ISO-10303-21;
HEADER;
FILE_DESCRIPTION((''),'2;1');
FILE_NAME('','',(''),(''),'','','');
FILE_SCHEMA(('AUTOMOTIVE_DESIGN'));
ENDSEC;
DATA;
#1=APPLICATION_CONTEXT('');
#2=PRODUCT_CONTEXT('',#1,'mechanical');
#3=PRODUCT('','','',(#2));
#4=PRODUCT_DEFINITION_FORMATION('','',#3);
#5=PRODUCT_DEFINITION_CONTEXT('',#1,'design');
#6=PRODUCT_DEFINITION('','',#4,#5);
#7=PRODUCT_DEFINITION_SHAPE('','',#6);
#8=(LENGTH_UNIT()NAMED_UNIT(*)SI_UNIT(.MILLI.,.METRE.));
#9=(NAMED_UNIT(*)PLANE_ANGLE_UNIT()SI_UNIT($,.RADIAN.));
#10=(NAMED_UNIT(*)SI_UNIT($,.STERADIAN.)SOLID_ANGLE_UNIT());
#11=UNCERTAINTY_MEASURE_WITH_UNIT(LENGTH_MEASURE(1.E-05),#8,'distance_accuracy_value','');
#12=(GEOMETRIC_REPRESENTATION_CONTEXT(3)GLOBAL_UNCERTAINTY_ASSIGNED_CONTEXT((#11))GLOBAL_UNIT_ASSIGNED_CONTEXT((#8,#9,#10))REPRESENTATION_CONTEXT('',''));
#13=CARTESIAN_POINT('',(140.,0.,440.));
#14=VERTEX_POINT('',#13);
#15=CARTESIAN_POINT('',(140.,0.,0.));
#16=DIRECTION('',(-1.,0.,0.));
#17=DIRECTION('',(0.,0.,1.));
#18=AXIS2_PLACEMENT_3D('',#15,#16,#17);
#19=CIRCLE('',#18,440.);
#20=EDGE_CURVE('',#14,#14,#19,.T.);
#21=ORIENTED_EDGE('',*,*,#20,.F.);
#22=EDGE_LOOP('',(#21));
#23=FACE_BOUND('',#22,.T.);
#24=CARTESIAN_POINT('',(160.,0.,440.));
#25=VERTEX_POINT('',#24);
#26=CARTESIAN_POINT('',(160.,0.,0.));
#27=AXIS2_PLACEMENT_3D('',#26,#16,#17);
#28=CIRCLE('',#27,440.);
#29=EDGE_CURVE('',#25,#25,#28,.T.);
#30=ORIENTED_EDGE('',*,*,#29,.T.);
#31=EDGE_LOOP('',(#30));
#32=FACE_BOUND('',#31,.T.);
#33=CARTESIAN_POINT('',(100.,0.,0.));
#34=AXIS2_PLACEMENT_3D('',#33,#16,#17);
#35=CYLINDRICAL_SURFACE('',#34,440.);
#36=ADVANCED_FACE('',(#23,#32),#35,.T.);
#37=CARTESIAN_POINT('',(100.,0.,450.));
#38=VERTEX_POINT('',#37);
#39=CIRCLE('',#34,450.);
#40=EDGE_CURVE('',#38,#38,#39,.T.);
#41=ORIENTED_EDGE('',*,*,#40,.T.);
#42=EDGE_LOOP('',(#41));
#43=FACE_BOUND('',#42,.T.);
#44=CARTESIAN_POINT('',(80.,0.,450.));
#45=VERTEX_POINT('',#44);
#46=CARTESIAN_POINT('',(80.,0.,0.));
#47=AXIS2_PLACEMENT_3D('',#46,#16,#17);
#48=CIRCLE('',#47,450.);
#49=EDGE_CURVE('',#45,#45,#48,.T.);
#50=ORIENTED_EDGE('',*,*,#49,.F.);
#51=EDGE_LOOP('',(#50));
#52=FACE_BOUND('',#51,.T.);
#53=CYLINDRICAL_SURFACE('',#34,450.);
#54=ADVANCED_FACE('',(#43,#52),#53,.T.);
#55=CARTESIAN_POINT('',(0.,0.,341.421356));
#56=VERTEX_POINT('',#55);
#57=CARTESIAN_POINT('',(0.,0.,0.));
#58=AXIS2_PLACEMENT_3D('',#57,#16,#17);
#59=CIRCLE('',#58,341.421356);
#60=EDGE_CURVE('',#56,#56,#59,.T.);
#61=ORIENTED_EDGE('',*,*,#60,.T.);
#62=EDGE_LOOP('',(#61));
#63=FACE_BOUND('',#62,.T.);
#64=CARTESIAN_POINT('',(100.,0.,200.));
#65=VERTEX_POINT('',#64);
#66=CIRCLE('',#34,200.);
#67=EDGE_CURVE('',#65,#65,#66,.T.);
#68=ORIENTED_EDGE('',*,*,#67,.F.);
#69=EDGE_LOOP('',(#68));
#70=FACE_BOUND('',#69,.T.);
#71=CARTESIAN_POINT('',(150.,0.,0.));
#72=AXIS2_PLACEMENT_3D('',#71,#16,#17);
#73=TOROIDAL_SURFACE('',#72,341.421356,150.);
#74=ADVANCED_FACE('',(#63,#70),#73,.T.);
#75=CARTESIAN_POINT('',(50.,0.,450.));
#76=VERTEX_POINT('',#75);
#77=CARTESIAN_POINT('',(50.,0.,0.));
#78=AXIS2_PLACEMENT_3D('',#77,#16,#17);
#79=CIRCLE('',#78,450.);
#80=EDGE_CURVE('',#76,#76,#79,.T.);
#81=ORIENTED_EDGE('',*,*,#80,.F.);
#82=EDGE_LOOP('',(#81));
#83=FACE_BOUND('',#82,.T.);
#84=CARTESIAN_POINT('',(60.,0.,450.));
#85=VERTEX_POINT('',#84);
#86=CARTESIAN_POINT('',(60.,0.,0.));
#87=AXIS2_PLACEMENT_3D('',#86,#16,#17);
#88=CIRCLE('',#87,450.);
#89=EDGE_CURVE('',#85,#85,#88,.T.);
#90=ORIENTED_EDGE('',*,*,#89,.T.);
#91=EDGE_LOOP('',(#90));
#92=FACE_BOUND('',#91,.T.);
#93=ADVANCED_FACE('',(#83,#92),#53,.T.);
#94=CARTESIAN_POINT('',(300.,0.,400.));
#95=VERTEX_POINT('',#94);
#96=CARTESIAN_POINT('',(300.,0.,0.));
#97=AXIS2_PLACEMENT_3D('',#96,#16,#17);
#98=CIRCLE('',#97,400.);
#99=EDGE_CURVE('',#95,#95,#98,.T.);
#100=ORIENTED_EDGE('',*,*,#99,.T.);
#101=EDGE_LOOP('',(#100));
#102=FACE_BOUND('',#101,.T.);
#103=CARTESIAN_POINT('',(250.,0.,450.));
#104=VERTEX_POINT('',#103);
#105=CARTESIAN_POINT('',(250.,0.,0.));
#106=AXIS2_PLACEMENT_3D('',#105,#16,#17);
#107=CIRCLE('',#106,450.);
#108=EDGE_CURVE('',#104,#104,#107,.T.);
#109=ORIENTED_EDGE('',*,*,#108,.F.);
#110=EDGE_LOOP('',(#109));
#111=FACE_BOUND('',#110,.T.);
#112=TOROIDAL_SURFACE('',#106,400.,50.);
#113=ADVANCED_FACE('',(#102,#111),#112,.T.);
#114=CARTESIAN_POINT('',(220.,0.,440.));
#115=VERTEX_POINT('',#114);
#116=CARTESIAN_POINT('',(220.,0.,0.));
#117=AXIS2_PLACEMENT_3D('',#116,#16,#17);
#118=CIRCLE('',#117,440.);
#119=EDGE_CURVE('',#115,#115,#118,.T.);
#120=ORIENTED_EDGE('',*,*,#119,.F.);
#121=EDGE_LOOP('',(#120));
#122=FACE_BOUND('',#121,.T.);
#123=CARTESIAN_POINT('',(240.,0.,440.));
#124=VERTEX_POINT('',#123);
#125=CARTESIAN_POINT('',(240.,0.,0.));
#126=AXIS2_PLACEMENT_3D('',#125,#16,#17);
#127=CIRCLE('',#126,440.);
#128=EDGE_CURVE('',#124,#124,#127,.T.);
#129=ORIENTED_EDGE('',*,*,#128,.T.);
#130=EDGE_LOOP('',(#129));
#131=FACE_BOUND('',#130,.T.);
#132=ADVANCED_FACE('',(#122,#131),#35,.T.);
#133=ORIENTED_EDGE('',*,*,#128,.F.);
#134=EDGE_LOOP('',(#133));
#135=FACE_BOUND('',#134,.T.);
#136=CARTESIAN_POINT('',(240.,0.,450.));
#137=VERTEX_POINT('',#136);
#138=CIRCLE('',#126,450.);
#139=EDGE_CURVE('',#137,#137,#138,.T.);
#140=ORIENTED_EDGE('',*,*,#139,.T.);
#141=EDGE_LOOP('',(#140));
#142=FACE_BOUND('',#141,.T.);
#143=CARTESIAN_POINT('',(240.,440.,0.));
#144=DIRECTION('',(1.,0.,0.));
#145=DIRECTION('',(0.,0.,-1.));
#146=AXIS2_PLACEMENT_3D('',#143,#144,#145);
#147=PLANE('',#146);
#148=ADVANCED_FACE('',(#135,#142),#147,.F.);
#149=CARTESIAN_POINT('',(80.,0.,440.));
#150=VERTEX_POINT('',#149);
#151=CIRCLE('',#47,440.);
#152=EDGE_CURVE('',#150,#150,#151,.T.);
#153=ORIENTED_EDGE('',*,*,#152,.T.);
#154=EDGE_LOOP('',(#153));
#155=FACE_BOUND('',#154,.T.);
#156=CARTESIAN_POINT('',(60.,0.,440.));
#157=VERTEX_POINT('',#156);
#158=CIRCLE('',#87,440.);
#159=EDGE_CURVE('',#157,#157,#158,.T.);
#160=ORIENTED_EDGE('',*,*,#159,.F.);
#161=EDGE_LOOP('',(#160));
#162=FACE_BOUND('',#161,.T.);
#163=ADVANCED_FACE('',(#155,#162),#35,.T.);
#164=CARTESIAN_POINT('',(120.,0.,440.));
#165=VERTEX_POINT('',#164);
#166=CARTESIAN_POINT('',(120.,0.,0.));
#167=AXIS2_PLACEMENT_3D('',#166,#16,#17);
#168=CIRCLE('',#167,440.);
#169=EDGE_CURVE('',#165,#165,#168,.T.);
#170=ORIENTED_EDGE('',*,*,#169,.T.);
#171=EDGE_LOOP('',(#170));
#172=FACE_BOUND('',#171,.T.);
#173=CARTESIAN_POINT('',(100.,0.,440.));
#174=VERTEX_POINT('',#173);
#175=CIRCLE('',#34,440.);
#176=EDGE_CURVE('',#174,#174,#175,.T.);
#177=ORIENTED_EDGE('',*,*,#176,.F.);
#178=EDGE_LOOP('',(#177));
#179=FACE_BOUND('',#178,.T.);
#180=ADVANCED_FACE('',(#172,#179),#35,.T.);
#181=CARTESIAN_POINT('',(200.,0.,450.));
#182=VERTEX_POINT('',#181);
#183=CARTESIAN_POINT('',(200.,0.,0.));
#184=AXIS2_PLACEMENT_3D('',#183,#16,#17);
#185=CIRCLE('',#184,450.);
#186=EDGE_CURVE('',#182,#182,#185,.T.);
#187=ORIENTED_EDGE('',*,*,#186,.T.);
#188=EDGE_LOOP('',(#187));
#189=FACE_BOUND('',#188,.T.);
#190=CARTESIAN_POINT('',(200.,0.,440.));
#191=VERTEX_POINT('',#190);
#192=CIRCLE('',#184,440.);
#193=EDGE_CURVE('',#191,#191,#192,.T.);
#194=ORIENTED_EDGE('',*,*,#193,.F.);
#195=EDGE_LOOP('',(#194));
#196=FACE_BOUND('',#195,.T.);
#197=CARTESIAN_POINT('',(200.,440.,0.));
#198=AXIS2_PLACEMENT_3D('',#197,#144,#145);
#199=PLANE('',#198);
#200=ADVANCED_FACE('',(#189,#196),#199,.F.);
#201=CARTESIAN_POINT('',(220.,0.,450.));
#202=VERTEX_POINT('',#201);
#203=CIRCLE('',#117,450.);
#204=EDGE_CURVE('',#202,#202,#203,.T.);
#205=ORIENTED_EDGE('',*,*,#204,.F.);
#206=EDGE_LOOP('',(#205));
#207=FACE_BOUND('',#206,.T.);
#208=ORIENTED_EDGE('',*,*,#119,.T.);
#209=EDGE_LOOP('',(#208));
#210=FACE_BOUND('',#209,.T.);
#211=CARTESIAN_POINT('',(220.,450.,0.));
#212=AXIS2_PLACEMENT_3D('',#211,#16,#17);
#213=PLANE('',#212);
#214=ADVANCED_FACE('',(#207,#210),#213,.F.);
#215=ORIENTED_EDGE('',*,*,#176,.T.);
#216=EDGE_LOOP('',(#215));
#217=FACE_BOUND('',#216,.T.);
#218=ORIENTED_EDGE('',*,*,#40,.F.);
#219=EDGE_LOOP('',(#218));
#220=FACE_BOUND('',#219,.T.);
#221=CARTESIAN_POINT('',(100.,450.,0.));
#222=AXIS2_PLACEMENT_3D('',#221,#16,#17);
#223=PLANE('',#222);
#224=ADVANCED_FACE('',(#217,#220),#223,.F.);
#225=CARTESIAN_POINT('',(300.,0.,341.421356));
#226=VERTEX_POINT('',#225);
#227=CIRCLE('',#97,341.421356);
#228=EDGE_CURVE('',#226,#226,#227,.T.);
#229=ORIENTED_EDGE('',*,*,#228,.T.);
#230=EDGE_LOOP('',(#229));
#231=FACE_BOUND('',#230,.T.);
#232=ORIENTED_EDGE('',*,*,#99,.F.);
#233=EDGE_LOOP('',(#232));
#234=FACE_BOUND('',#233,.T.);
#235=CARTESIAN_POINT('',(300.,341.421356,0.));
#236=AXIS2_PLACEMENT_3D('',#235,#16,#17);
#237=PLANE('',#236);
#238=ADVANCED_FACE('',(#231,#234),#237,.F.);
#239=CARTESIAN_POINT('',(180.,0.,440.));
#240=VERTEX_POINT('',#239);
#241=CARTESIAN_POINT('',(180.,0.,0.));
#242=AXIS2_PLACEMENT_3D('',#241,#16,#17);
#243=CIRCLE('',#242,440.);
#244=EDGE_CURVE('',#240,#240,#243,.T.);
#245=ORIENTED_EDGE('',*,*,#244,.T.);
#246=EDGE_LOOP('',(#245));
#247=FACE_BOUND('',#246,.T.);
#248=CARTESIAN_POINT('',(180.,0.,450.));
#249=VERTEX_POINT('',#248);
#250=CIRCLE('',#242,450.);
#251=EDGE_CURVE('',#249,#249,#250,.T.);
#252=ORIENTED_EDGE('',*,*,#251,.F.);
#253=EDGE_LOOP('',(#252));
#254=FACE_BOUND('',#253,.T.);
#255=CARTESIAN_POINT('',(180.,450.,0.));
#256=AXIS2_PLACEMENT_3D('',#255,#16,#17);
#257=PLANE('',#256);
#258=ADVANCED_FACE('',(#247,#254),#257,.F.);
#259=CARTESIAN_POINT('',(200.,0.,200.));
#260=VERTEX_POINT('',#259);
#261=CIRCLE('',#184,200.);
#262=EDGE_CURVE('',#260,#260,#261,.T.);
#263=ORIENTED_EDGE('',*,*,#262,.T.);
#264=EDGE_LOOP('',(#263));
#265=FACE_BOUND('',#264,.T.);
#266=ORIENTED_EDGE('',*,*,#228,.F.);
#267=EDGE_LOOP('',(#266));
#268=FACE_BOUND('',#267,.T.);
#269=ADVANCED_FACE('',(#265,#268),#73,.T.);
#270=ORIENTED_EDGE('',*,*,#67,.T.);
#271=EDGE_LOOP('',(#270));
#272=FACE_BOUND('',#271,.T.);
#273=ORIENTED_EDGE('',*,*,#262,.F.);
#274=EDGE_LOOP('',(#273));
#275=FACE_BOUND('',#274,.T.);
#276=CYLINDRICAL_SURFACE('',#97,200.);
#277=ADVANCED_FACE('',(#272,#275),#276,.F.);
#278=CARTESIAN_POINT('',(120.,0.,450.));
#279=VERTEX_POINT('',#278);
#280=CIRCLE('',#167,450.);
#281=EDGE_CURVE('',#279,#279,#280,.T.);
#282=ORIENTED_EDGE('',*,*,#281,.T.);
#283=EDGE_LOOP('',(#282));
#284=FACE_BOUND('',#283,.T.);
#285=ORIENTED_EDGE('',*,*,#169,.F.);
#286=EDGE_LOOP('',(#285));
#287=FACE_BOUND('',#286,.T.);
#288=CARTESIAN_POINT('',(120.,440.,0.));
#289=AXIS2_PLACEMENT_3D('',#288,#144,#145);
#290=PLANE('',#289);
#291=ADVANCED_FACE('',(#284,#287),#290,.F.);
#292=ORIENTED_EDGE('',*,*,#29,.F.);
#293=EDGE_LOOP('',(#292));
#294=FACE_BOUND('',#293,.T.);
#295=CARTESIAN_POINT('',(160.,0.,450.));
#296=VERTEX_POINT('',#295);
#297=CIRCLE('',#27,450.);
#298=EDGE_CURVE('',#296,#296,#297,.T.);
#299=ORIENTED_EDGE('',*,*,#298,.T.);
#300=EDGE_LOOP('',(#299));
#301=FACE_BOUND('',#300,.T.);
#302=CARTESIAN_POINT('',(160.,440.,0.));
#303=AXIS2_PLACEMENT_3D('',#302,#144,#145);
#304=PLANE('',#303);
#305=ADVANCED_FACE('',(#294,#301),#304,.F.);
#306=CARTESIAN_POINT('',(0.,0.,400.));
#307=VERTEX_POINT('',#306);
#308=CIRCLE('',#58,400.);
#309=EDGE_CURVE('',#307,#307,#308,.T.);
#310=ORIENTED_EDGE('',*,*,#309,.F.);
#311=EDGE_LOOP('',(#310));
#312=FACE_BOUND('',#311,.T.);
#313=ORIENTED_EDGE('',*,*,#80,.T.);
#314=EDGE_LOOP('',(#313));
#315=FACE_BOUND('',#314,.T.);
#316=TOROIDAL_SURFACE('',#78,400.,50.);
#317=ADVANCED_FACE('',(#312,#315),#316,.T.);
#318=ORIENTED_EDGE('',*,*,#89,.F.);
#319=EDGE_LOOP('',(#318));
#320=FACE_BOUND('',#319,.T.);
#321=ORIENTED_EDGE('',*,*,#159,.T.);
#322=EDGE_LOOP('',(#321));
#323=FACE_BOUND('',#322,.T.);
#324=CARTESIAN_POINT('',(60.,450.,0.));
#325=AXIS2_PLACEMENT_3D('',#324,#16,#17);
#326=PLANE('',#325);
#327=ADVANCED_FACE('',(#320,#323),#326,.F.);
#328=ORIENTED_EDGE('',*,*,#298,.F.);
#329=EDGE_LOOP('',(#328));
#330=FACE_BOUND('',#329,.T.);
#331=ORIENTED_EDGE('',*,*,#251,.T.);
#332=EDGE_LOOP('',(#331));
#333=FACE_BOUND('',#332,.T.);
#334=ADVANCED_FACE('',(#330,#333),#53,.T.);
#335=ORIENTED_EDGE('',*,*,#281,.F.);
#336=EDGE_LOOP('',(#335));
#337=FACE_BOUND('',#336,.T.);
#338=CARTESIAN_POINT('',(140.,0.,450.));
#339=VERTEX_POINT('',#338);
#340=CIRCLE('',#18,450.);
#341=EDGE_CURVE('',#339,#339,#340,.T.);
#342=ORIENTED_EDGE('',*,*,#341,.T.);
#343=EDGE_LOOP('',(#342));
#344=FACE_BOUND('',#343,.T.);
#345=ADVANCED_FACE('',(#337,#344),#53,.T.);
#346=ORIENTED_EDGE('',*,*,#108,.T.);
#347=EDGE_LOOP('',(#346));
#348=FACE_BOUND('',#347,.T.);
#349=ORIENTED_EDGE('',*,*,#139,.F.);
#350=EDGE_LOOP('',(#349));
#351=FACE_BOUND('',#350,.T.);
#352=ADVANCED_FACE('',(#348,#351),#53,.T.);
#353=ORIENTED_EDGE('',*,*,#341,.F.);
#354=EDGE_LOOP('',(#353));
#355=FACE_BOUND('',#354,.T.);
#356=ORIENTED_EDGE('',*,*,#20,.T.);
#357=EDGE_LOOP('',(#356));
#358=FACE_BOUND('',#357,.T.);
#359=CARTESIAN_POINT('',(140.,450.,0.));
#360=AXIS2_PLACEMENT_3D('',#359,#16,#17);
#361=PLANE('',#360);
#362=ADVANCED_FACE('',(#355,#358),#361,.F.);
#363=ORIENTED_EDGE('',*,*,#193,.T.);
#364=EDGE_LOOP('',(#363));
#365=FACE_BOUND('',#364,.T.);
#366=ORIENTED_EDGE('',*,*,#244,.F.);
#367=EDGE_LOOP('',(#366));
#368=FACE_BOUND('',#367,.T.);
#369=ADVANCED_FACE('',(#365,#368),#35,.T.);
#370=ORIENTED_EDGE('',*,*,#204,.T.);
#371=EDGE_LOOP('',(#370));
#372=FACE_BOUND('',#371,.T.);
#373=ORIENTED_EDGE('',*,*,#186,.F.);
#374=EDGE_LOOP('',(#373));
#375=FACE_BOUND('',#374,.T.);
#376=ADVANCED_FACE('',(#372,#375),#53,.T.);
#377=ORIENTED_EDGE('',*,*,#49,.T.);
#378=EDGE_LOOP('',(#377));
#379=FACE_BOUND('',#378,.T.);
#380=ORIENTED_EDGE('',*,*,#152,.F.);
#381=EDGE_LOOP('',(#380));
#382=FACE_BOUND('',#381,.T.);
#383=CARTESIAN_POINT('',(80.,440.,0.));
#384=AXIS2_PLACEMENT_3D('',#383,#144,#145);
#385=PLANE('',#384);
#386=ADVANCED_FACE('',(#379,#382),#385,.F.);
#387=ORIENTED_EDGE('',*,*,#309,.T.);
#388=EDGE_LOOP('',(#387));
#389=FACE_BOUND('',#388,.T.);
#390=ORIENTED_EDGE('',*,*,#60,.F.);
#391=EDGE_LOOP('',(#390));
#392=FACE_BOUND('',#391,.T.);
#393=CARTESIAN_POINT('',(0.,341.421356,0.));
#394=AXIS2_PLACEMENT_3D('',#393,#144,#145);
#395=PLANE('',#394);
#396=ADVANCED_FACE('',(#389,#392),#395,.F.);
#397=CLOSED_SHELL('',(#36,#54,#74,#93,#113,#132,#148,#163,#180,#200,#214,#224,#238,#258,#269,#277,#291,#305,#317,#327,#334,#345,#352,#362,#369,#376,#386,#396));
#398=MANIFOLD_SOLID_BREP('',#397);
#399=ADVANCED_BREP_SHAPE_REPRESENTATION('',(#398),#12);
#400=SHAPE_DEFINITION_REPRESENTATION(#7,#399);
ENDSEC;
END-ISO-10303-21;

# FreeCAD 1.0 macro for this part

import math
import FreeCAD as App
import Part
import Sketcher
Q = App.Units.Quantity

doc = App.newDocument("Part")
body = doc.addObject("PartDesign::Body", "Body")

sketch1 = doc.addObject("Sketcher::SketchObject", "Sketch")
body.addObject(sketch1)
sketch1.AttachmentSupport = (doc.XY_Plane, [""])
sketch1.MapMode = "FlatFace"
sketch1.addGeometry([
    Part.LineSegment(App.Vector(60, 440, 0), App.Vector(60, 450, 0)),
    Part.LineSegment(App.Vector(60, 450, 0), App.Vector(50, 450, 0)),
    Part.ArcOfCircle(Part.Circle(App.Vector(50, 400, 0), App.Vector(0, 0, 1), 50), math.radians(90), math.radians(180)),
    Part.LineSegment(App.Vector(0, 400, 0), App.Vector(0, 341, 0)),
    Part.ArcOfCircle(Part.Circle(App.Vector(150, 341, 0), App.Vector(0, 0, 1), 150), math.radians(-180), math.radians(-109)),
    Part.LineSegment(App.Vector(100, 200, 0), App.Vector(100, 0, 0)),
    Part.LineSegment(App.Vector(100, 0, 0), App.Vector(200, 0, 0)),
    Part.LineSegment(App.Vector(200, 0, 0), App.Vector(200, 200, 0)),
    Part.ArcOfCircle(Part.Circle(App.Vector(150, 341, 0), App.Vector(0, 0, 1), 150), math.radians(-71), math.radians(0)),
    Part.LineSegment(App.Vector(300, 341, 0), App.Vector(300, 400, 0)),
    Part.ArcOfCircle(Part.Circle(App.Vector(250, 400, 0), App.Vector(0, 0, 1), 50), math.radians(0), math.radians(90)),
    Part.LineSegment(App.Vector(250, 450, 0), App.Vector(240, 450, 0)),
    Part.LineSegment(App.Vector(240, 450, 0), App.Vector(240, 440, 0)),
    Part.LineSegment(App.Vector(240, 440, 0), App.Vector(220, 440, 0)),
    Part.LineSegment(App.Vector(220, 440, 0), App.Vector(220, 450, 0)),
    Part.LineSegment(App.Vector(220, 450, 0), App.Vector(200, 450, 0)),
    Part.LineSegment(App.Vector(200, 450, 0), App.Vector(200, 440, 0)),
    Part.LineSegment(App.Vector(200, 440, 0), App.Vector(180, 440, 0)),
    Part.LineSegment(App.Vector(180, 440, 0), App.Vector(180, 450, 0)),
    Part.LineSegment(App.Vector(180, 450, 0), App.Vector(160, 450, 0)),
    Part.LineSegment(App.Vector(160, 450, 0), App.Vector(160, 440, 0)),
    Part.LineSegment(App.Vector(160, 440, 0), App.Vector(140, 440, 0)),
    Part.LineSegment(App.Vector(140, 440, 0), App.Vector(140, 450, 0)),
    Part.LineSegment(App.Vector(140, 450, 0), App.Vector(120, 450, 0)),
    Part.LineSegment(App.Vector(120, 450, 0), App.Vector(120, 440, 0)),
    Part.LineSegment(App.Vector(120, 440, 0), App.Vector(100, 440, 0)),
    Part.LineSegment(App.Vector(100, 440, 0), App.Vector(100, 450, 0)),
    Part.LineSegment(App.Vector(100, 450, 0), App.Vector(80, 450, 0)),
    Part.LineSegment(App.Vector(80, 450, 0), App.Vector(80, 440, 0)),
    Part.LineSegment(App.Vector(80, 440, 0), App.Vector(60, 440, 0)),
], False)
sketch1.addConstraint([
    Sketcher.Constraint("Coincident", 0, 2, 1, 1),
    Sketcher.Constraint("Tangent", 1, 2, 2, 1),
    Sketcher.Constraint("Tangent", 2, 2, 3, 1),
    Sketcher.Constraint("Tangent", 3, 2, 4, 1),
    Sketcher.Constraint("Coincident", 4, 2, 5, 1),
    Sketcher.Constraint("Coincident", 5, 2, 6, 1),
    Sketcher.Constraint("Coincident", 6, 2, 7, 1),
    Sketcher.Constraint("Coincident", 7, 2, 8, 1),
    Sketcher.Constraint("Tangent", 8, 2, 9, 1),
    Sketcher.Constraint("Tangent", 9, 2, 10, 1),
    Sketcher.Constraint("Tangent", 10, 2, 11, 1),
    Sketcher.Constraint("Coincident", 11, 2, 12, 1),
    Sketcher.Constraint("Coincident", 12, 2, 13, 1),
    Sketcher.Constraint("Coincident", 13, 2, 14, 1),
    Sketcher.Constraint("Coincident", 14, 2, 15, 1),
    Sketcher.Constraint("Coincident", 15, 2, 16, 1),
    Sketcher.Constraint("Coincident", 16, 2, 17, 1),
    Sketcher.Constraint("Coincident", 17, 2, 18, 1),
    Sketcher.Constraint("Coincident", 18, 2, 19, 1),
    Sketcher.Constraint("Coincident", 19, 2, 20, 1),
    Sketcher.Constraint("Coincident", 20, 2, 21, 1),
    Sketcher.Constraint("Coincident", 21, 2, 22, 1),
    Sketcher.Constraint("Coincident", 22, 2, 23, 1),
    Sketcher.Constraint("Coincident", 23, 2, 24, 1),
    Sketcher.Constraint("Coincident", 24, 2, 25, 1),
    Sketcher.Constraint("Coincident", 25, 2, 26, 1),
    Sketcher.Constraint("Coincident", 26, 2, 27, 1),
    Sketcher.Constraint("Coincident", 27, 2, 28, 1),
    Sketcher.Constraint("Coincident", 28, 2, 29, 1),
    Sketcher.Constraint("Coincident", 29, 2, 0, 1),
    Sketcher.Constraint("Vertical", 0),
    Sketcher.Constraint("Horizontal", 1),
    Sketcher.Constraint("Vertical", 3),
    Sketcher.Constraint("Vertical", 5),
    Sketcher.Constraint("Horizontal", 6),
    Sketcher.Constraint("Vertical", 7),
    Sketcher.Constraint("Vertical", 9),
    Sketcher.Constraint("Horizontal", 11),
    Sketcher.Constraint("Vertical", 12),
    Sketcher.Constraint("Horizontal", 13),
    Sketcher.Constraint("Vertical", 14),
    Sketcher.Constraint("Horizontal", 15),
    Sketcher.Constraint("Vertical", 16),
    Sketcher.Constraint("Horizontal", 17),
    Sketcher.Constraint("Vertical", 18),
    Sketcher.Constraint("Horizontal", 19),
    Sketcher.Constraint("Vertical", 20),
    Sketcher.Constraint("Horizontal", 21),
    Sketcher.Constraint("Vertical", 22),
    Sketcher.Constraint("Horizontal", 23),
    Sketcher.Constraint("Vertical", 24),
    Sketcher.Constraint("Horizontal", 25),
    Sketcher.Constraint("Vertical", 26),
    Sketcher.Constraint("Horizontal", 27),
    Sketcher.Constraint("Vertical", 28),
    Sketcher.Constraint("Horizontal", 29),
    Sketcher.Constraint("Coincident", 8, 3, 4, 3),
    Sketcher.Constraint("Equal", 4, 8),
    Sketcher.Constraint("Equal", 2, 10),
    Sketcher.Constraint("PointOnObject", 2, 2, -2),
    Sketcher.Constraint("PointOnObject", 5, 2, -1),
    Sketcher.Constraint("Horizontal", 2, 3, 10, 3),
    Sketcher.Constraint("Horizontal", 4, 2, 7, 2),
    Sketcher.Constraint("Horizontal", 11, 2, 14, 2),
    Sketcher.Constraint("Horizontal", 13, 2, 16, 2),
    Sketcher.Constraint("Horizontal", 15, 2, 18, 2),
    Sketcher.Constraint("Horizontal", 17, 2, 20, 2),
    Sketcher.Constraint("Horizontal", 19, 2, 22, 2),
    Sketcher.Constraint("Horizontal", 21, 2, 24, 2),
    Sketcher.Constraint("Horizontal", 23, 2, 26, 2),
    Sketcher.Constraint("Horizontal", 25, 2, 28, 2),
    Sketcher.Constraint("Vertical", 7, 2, 15, 2),
    Sketcher.Constraint("Vertical", 5, 2, 25, 2),
    Sketcher.Constraint("Equal", 1, 11),
    Sketcher.Constraint("Equal", 13, 15),
    Sketcher.Constraint("Equal", 15, 17),
    Sketcher.Constraint("Equal", 17, 19),
    Sketcher.Constraint("Equal", 19, 21),
    Sketcher.Constraint("Equal", 21, 23),
    Sketcher.Constraint("Equal", 23, 25),
    Sketcher.Constraint("Equal", 25, 27),
    Sketcher.Constraint("Equal", 11, 0),
    Sketcher.Constraint("Radius", 2, Q("50 mm")),
    Sketcher.Constraint("Radius", 4, Q("150 mm")),
    Sketcher.Constraint("DistanceX", 1, 2, 1, 1, Q("10 mm")),
    Sketcher.Constraint("DistanceY", 5, 2, 5, 1, Q("200 mm")),
    Sketcher.Constraint("DistanceY", -1, 1, 2, 3, Q("400 mm")),
])
revolution = doc.addObject("PartDesign::Revolution", "Revolution")
body.addObject(revolution)
revolution.Profile = sketch1
revolution.ReferenceAxis = (sketch1, ["H_Axis"])
revolution.Angle = 360

sketch2 = doc.addObject("Sketcher::SketchObject", "Sketch001")
body.addObject(sketch2)
sketch2.AttachmentSupport = (doc.YZ_Plane, [""])
sketch2.MapMode = "FlatFace"
sketch2.AttachmentOffset = App.Placement(App.Vector(0, 0, 100), App.Rotation())
sketch2.addGeometry(Part.Circle(App.Vector(0, 0, 0), App.Vector(0, 0, 1), 200), False)
sketch2.addConstraint([
    Sketcher.Constraint("Coincident", 0, 3, -1, 1),
    Sketcher.Constraint("Diameter", 0, Q("400 mm")),
])
pocket1 = doc.addObject("PartDesign::Pocket", "Pocket")
body.addObject(pocket1)
pocket1.Profile = sketch2
pocket1.Type = "ThroughAll"
pocket1.Reversed = True

doc.recompute()
